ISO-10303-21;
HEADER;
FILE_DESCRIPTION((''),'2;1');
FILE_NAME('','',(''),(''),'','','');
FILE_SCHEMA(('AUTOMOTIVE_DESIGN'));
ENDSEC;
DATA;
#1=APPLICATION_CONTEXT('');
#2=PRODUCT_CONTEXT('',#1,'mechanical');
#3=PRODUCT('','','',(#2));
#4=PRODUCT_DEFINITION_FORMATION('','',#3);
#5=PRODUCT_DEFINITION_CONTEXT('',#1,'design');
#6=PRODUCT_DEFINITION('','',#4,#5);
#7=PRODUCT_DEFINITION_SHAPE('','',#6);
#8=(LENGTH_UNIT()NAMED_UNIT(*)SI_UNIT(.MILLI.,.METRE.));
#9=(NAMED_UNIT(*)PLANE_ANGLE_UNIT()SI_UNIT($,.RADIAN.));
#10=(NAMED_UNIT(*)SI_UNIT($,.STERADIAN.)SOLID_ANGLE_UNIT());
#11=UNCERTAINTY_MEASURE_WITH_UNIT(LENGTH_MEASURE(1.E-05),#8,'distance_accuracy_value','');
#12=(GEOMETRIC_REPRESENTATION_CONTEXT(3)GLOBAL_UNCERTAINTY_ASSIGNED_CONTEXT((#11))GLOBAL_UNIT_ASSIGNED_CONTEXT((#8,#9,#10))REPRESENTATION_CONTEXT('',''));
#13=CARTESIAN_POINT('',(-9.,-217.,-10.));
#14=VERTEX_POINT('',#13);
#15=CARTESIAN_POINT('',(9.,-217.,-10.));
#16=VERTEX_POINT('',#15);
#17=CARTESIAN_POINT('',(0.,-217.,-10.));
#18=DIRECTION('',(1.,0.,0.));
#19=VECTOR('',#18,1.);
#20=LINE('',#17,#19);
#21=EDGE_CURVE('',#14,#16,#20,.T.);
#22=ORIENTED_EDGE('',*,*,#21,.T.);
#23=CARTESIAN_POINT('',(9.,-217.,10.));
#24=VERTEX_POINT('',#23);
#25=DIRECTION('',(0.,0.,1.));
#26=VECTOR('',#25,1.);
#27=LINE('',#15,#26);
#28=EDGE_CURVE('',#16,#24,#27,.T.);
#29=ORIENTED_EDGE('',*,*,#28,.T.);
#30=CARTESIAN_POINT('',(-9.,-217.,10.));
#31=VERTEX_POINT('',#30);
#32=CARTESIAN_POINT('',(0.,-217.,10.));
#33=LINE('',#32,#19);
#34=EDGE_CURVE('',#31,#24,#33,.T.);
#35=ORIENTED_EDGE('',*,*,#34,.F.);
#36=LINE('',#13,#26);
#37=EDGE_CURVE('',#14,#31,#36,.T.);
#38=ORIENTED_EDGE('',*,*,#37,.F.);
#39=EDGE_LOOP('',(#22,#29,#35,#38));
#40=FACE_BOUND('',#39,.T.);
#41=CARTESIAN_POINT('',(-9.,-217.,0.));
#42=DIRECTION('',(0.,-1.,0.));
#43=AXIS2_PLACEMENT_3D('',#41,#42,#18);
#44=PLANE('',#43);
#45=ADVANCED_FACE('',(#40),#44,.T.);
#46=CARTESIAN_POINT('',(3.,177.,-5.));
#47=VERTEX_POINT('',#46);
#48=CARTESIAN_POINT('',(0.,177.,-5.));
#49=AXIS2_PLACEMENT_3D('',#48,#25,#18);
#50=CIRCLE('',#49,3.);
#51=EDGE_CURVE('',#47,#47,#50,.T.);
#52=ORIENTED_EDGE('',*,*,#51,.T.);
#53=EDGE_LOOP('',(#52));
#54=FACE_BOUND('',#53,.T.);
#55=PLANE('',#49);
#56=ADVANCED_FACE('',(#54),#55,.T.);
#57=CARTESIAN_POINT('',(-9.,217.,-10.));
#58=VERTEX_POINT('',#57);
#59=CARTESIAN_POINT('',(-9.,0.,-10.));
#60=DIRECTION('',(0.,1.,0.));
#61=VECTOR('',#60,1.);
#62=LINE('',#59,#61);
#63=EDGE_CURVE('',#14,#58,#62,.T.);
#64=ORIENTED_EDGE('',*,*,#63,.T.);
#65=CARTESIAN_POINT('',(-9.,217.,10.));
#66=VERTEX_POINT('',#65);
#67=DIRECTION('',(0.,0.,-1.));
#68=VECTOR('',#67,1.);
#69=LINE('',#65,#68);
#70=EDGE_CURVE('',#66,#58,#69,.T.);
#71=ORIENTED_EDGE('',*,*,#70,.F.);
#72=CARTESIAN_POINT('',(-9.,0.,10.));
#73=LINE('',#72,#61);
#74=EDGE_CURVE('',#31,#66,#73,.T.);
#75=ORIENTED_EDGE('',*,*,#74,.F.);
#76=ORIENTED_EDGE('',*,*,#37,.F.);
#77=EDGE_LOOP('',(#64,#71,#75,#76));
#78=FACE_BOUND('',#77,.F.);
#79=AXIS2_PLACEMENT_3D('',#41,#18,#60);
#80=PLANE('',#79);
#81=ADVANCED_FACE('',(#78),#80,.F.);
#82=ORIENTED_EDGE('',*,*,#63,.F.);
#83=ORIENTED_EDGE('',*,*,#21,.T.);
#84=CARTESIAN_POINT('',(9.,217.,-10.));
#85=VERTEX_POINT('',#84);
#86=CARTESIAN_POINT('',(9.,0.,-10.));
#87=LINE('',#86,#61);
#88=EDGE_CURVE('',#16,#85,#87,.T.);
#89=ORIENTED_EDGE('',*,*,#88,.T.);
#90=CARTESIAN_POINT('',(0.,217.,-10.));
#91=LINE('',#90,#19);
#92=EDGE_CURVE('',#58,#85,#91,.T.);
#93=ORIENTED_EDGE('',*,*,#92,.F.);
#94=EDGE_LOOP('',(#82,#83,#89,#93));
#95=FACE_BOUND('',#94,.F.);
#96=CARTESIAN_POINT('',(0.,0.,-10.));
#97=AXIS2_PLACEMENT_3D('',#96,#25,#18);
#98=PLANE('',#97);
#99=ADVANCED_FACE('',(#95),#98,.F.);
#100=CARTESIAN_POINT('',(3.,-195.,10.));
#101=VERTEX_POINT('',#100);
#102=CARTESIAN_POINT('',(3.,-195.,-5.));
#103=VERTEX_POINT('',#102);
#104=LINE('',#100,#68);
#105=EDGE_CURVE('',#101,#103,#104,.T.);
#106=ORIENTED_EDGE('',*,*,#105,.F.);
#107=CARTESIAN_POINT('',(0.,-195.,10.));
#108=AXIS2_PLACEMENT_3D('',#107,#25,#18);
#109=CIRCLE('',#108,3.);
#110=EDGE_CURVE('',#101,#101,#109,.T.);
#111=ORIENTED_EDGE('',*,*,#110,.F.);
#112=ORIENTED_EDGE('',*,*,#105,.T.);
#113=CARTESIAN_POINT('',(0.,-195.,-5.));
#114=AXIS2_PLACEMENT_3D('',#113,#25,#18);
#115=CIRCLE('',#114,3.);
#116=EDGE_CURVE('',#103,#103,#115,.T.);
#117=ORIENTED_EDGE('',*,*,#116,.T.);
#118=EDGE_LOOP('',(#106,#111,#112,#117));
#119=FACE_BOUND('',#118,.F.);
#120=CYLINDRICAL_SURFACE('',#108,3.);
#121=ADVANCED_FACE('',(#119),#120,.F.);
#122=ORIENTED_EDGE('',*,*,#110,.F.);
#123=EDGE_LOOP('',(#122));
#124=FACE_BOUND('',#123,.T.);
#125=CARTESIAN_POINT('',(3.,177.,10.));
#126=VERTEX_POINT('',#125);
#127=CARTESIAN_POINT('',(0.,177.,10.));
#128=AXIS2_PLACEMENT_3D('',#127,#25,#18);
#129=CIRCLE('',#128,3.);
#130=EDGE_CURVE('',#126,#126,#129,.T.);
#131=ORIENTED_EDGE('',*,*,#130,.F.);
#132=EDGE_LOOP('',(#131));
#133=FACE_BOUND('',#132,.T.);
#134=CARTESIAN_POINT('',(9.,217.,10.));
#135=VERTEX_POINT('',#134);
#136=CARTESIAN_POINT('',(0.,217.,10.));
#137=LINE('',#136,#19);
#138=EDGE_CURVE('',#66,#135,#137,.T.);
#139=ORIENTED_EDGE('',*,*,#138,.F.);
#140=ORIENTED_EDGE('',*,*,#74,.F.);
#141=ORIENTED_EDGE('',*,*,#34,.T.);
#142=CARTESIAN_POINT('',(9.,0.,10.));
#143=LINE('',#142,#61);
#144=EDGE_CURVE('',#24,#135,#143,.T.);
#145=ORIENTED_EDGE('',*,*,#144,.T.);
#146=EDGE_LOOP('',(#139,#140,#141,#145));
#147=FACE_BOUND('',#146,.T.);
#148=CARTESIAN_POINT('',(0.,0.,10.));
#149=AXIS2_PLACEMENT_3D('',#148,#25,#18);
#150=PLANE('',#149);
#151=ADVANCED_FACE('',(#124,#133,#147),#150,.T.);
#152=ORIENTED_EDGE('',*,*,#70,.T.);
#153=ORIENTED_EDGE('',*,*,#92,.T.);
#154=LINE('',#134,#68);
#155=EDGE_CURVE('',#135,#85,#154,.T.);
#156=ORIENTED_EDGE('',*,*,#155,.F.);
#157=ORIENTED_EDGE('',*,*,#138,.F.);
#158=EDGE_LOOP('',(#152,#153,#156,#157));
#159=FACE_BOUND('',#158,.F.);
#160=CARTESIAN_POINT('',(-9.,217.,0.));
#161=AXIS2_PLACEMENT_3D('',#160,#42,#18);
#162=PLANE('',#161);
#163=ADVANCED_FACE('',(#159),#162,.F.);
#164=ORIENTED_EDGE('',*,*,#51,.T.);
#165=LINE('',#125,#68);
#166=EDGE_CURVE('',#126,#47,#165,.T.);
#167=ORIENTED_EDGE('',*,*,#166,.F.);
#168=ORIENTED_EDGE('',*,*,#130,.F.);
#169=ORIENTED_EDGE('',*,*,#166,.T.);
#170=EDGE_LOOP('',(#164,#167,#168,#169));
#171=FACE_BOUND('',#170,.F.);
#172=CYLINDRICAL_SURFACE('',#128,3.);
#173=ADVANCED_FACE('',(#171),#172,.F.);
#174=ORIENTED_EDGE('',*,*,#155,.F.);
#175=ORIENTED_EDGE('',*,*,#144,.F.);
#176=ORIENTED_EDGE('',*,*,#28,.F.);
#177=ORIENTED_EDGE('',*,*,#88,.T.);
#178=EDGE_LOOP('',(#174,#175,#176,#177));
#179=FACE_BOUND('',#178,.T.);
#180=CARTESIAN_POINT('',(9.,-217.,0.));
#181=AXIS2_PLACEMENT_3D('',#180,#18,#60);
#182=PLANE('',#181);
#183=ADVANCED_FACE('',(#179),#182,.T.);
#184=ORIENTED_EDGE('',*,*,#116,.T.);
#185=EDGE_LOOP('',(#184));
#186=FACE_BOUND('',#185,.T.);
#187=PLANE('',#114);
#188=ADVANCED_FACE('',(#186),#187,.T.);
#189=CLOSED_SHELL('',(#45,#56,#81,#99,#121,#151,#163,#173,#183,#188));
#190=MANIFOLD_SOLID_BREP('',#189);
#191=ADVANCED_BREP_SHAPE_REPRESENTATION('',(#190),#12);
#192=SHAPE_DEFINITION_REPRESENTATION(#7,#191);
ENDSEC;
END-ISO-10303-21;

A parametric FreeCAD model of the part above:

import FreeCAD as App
import Part
import Sketcher

V = App.Vector
Q = App.Units.Quantity


def add_polygon(sketch, points):
    """Adds a closed chain of lines whose ends are joined by coincident constraints."""
    first, n = sketch.GeometryCount, len(points)
    for a, b in zip(points, points[1:] + points[:1]):
        sketch.addGeometry(Part.LineSegment(App.Vector(*a, 0), App.Vector(*b, 0)), False)
    for i in range(n):
        sketch.addConstraint(Sketcher.Constraint("Coincident", first + i, 2, first + (i + 1) % n, 1))

doc = App.newDocument("Part")
body = doc.addObject("PartDesign::Body", "Body")

# Sketch on XY plane
sketch1 = doc.addObject("Sketcher::SketchObject", "Sketch")
body.addObject(sketch1)
sketch1.AttachmentSupport = (doc.XY_Plane, [""])
sketch1.MapMode = "FlatFace"
add_polygon(sketch1, [(-9, 217), (-9, -217), (9, -217), (9, 217)])  # lines 0-3
sketch1.addConstraint([
    Sketcher.Constraint("Vertical", 0),
    Sketcher.Constraint("Horizontal", 1),
    Sketcher.Constraint("Vertical", 2),
    Sketcher.Constraint("Horizontal", 3),
    Sketcher.Constraint("Symmetric", 0, 2, 2, 2, -1, 1),
    Sketcher.Constraint("DistanceX", 1, 1, 1, 2, Q("18 mm")),
    Sketcher.Constraint("DistanceY", 0, 2, 0, 1, Q("434 mm")),
])
pad1 = doc.addObject("PartDesign::Pad", "Pad")
body.addObject(pad1)
pad1.Profile = sketch1
pad1.Length = 20
pad1.Midplane = True

# Sketch on XY plane
sketch2 = doc.addObject("Sketcher::SketchObject", "Sketch001")
body.addObject(sketch2)
sketch2.AttachmentSupport = (doc.XY_Plane, [""])
sketch2.MapMode = "FlatFace"
sketch2.AttachmentOffset = App.Placement(V(0, 0, 10), App.Rotation())
sketch2.addGeometry([
    Part.Circle(V(0, -195, 0), V(0, 0, 1), 3),
    Part.Circle(V(0, 177, 0), V(0, 0, 1), 3),
], False)
sketch2.addConstraint([
    Sketcher.Constraint("Equal", 0, 1),
    Sketcher.Constraint("PointOnObject", 0, 3, -2),
    Sketcher.Constraint("PointOnObject", 1, 3, -2),
    Sketcher.Constraint("Diameter", 0, Q("6 mm")),
    Sketcher.Constraint("DistanceY", 0, 3, -1, 1, Q("195 mm")),
    Sketcher.Constraint("DistanceY", -1, 1, 1, 3, Q("177 mm")),
])
pocket1 = doc.addObject("PartDesign::Pocket", "Pocket")
body.addObject(pocket1)
pocket1.Profile = sketch2
pocket1.Length = 15

doc.recompute()
